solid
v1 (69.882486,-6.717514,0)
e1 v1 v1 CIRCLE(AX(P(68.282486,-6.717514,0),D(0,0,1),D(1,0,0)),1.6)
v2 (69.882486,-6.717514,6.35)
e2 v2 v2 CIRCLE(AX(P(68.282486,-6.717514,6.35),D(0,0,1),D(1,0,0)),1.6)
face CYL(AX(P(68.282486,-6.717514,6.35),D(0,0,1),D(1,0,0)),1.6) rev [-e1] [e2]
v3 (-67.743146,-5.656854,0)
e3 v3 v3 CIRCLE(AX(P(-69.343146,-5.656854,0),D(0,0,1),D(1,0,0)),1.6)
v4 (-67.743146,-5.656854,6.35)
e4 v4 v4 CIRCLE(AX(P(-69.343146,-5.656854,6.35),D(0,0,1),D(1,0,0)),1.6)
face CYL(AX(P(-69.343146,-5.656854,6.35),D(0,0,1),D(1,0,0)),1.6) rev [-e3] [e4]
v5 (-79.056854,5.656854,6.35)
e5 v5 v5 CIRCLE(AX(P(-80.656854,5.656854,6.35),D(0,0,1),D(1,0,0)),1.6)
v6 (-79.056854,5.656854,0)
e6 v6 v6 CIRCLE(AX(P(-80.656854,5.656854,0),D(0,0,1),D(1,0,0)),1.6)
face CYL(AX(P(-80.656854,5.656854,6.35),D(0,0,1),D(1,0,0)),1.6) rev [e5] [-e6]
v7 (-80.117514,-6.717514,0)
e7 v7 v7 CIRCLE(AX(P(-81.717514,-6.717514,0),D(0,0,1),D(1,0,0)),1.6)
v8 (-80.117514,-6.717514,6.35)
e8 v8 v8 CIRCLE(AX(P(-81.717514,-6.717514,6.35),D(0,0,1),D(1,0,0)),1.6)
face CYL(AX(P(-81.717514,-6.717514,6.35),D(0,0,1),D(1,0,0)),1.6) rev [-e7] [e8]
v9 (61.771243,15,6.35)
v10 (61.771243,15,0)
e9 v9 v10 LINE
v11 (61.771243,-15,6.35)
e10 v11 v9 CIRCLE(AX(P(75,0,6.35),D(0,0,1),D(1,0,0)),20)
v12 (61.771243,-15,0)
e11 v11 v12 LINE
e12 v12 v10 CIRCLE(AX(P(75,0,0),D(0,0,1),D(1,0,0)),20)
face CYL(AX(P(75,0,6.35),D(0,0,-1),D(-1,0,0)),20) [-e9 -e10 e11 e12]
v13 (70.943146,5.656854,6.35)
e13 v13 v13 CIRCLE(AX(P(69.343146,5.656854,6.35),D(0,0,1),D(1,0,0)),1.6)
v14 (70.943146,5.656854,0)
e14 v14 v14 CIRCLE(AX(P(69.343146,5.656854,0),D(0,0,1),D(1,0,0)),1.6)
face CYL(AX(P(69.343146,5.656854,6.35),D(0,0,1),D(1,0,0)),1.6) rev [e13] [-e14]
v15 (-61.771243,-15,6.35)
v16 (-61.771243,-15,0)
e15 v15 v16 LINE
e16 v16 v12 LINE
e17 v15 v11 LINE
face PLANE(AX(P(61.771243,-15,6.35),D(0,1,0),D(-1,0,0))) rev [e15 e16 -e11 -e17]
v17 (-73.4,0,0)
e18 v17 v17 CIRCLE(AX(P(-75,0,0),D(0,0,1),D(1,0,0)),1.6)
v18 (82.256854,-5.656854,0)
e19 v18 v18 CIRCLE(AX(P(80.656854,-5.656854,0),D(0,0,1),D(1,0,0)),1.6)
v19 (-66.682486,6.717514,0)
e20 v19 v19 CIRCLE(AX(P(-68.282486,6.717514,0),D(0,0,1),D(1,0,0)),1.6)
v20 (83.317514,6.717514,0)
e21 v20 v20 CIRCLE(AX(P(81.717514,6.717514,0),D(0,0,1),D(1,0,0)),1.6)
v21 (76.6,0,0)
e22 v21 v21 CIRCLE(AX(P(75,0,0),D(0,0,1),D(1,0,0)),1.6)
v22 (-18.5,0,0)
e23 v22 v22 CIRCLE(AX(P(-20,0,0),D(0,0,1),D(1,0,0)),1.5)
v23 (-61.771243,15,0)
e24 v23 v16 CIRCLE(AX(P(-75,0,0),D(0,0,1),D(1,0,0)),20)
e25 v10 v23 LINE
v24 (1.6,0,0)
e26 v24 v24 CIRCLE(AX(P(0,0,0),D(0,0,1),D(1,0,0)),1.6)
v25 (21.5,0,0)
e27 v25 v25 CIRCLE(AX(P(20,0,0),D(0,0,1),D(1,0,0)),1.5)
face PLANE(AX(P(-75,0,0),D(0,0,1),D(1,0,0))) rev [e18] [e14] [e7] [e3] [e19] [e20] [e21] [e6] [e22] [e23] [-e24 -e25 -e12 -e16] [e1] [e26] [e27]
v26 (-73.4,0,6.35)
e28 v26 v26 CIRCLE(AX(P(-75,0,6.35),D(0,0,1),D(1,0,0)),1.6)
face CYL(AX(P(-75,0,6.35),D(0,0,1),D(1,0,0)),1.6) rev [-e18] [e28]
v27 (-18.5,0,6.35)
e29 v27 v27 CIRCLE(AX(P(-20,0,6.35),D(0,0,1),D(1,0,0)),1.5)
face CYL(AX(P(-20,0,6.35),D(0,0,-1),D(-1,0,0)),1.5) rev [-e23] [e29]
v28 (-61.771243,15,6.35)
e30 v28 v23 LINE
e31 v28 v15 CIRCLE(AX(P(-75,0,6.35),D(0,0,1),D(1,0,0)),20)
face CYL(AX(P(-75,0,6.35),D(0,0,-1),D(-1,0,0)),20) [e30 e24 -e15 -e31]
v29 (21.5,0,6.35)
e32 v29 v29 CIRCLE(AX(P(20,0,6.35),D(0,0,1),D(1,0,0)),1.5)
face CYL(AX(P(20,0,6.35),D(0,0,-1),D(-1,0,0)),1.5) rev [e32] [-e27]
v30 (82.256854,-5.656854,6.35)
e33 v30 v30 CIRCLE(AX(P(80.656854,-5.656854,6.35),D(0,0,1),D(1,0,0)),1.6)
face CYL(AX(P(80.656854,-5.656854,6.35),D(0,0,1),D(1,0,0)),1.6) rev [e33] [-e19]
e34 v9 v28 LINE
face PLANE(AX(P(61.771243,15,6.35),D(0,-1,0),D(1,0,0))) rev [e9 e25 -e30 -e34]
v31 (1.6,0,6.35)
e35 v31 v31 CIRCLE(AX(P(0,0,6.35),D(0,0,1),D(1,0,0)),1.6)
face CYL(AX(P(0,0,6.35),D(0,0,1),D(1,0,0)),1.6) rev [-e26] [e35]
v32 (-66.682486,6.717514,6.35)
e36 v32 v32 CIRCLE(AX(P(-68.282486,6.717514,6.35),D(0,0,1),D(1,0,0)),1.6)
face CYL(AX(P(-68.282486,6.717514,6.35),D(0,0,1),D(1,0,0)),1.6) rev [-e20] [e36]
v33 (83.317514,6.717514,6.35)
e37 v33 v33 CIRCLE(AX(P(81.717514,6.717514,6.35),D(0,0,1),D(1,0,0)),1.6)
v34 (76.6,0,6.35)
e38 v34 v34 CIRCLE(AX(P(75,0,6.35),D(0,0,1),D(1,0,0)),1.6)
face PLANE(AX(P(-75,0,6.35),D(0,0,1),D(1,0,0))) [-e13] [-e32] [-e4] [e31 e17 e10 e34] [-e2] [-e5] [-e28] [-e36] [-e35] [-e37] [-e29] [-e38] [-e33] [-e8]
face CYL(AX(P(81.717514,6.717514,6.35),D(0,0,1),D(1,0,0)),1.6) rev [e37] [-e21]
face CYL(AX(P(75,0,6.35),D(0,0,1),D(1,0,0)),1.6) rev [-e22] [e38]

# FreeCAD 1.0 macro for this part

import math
import FreeCAD as App
import Part
import Sketcher

V = App.Vector
Q = App.Units.Quantity

doc = App.newDocument("Part")
body = doc.addObject("PartDesign::Body", "Body")

sketch1 = body.newObject("Sketcher::SketchObject", "Sketch")
sketch1.AttachmentSupport = (doc.getObject("XY_Plane"), [""])
sketch1.MapMode = "FlatFace"
sketch1.addGeometry([
    Part.LineSegment(V(-61.771243, -15, 0), V(61.771243, -15, 0)),
    Part.ArcOfCircle(Part.Circle(V(75, 0, 0), V(0, 0, 1), 20), math.radians(-131.409622), math.radians(131.409622)),
    Part.LineSegment(V(61.771243, 15, 0), V(-61.771243, 15, 0)),
    Part.ArcOfCircle(Part.Circle(V(-75, 0, 0), V(0, 0, 1), 20), math.radians(48.590378), math.radians(311.409622)),
    Part.Circle(V(20, 0, 0), V(0, 0, 1), 1.5),
    Part.Circle(V(-20, 0, 0), V(0, 0, 1), 1.5),
], False)
sketch1.addConstraint([
    Sketcher.Constraint("Coincident", 0, 2, 1, 1),
    Sketcher.Constraint("Coincident", 1, 2, 2, 1),
    Sketcher.Constraint("Coincident", 2, 2, 3, 1),
    Sketcher.Constraint("Coincident", 3, 2, 0, 1),
    Sketcher.Constraint("Horizontal", 0),
    Sketcher.Constraint("Horizontal", 2),
    Sketcher.Constraint("Equal", 1, 3),
    Sketcher.Constraint("Equal", 4, 5),
    Sketcher.Constraint("Symmetric", 1, 3, 3, 3, -1, 1),
    Sketcher.Constraint("Symmetric", 4, 3, 5, 3, -1, 1),
    Sketcher.Constraint("Symmetric", 0, 2, 1, 2, -1),
    Sketcher.Constraint("PointOnObject", 4, 3, -1),
    Sketcher.Constraint("Diameter", 4, Q("3 mm")),
    Sketcher.Constraint("Radius", 1, Q("20 mm")),
    Sketcher.Constraint("DistanceX", -1, 1, 1, 3, Q("75 mm")),
    Sketcher.Constraint("DistanceX", -1, 1, 4, 3, Q("20 mm")),
    Sketcher.Constraint("DistanceY", 0, 2, -1, 1, Q("15 mm")),
])
pad1 = body.newObject("PartDesign::Pad", "Pad")
pad1.Profile = sketch1
pad1.Length = 6.35

sketch2 = body.newObject("Sketcher::SketchObject", "Sketch001")
sketch2.AttachmentSupport = (doc.getObject("XY_Plane"), [""])
sketch2.MapMode = "FlatFace"
sketch2.AttachmentOffset = App.Placement(V(0, 0, 6.35), App.Rotation())
sketch2.addGeometry([
    Part.Circle(V(75, 0, 0), V(0, 0, 1), 1.6),
    Part.Circle(V(-75, 0, 0), V(0, 0, 1), 1.6),
    Part.Circle(V(-81.717514, -6.717514, 0), V(0, 0, 1), 1.6),
    Part.Circle(V(-69.343146, -5.656854, 0), V(0, 0, 1), 1.6),
    Part.Circle(V(-68.282486, 6.717514, 0), V(0, 0, 1), 1.6),
    Part.Circle(V(-80.656854, 5.656854, 0), V(0, 0, 1), 1.6),
    Part.Circle(V(0, 0, 0), V(0, 0, 1), 1.6),
    Part.Circle(V(81.717514, 6.717514, 0), V(0, 0, 1), 1.6),
    Part.Circle(V(69.343146, 5.656854, 0), V(0, 0, 1), 1.6),
    Part.Circle(V(68.282486, -6.717514, 0), V(0, 0, 1), 1.6),
    Part.Circle(V(80.656854, -5.656854, 0), V(0, 0, 1), 1.6),
], False)
sketch2.addConstraint([
    Sketcher.Constraint("Coincident", 6, 3, -1, 1),
    Sketcher.Constraint("Equal", 0, 1),
    Sketcher.Constraint("Equal", 1, 2),
    Sketcher.Constraint("Equal", 2, 3),
    Sketcher.Constraint("Equal", 3, 4),
    Sketcher.Constraint("Equal", 4, 5),
    Sketcher.Constraint("Equal", 5, 6),
    Sketcher.Constraint("Equal", 6, 7),
    Sketcher.Constraint("Equal", 7, 8),
    Sketcher.Constraint("Equal", 8, 9),
    Sketcher.Constraint("Equal", 9, 10),
    Sketcher.Constraint("Symmetric", 0, 3, 1, 3, -1, 1),
    Sketcher.Constraint("Symmetric", 2, 3, 7, 3, -1, 1),
    Sketcher.Constraint("Symmetric", 3, 3, 8, 3, -1, 1),
    Sketcher.Constraint("Symmetric", 4, 3, 9, 3, -1, 1),
    Sketcher.Constraint("Symmetric", 5, 3, 10, 3, -1, 1),
    Sketcher.Constraint("PointOnObject", 0, 3, -1),
    Sketcher.Constraint("Horizontal", 4, 3, 7, 3),
    Sketcher.Constraint("Horizontal", 5, 3, 8, 3),
    Sketcher.Constraint("Diameter", 0, Q("3.2 mm")),
    Sketcher.Constraint("DistanceX", -1, 1, 0, 3, Q("75 mm")),
    Sketcher.Constraint("DistanceX", 4, 3, 7, 3, Q("150 mm")),
    Sketcher.Constraint("DistanceX", 2, 3, 3, 3, Q("12.374369 mm")),
    Sketcher.Constraint("DistanceY", 2, 3, 3, 3, Q("1.06066 mm")),
    Sketcher.Constraint("DistanceX", 3, 3, 4, 3, Q("1.06066 mm")),
    Sketcher.Constraint("DistanceY", 3, 3, 4, 3, Q("12.374369 mm")),
    Sketcher.Constraint("DistanceX", 2, 3, 5, 3, Q("1.06066 mm")),
])
doc.recompute()
hole = body.newObject("PartDesign::Hole", "Hole")
hole.Profile = sketch2
hole.ThreadType = "None"
hole.Diameter = 3.2
hole.DepthType = "Dimension"
hole.Depth = 7.5
hole.DrillPoint = "Angled"
hole.DrillPointAngle = 118

doc.recompute()
